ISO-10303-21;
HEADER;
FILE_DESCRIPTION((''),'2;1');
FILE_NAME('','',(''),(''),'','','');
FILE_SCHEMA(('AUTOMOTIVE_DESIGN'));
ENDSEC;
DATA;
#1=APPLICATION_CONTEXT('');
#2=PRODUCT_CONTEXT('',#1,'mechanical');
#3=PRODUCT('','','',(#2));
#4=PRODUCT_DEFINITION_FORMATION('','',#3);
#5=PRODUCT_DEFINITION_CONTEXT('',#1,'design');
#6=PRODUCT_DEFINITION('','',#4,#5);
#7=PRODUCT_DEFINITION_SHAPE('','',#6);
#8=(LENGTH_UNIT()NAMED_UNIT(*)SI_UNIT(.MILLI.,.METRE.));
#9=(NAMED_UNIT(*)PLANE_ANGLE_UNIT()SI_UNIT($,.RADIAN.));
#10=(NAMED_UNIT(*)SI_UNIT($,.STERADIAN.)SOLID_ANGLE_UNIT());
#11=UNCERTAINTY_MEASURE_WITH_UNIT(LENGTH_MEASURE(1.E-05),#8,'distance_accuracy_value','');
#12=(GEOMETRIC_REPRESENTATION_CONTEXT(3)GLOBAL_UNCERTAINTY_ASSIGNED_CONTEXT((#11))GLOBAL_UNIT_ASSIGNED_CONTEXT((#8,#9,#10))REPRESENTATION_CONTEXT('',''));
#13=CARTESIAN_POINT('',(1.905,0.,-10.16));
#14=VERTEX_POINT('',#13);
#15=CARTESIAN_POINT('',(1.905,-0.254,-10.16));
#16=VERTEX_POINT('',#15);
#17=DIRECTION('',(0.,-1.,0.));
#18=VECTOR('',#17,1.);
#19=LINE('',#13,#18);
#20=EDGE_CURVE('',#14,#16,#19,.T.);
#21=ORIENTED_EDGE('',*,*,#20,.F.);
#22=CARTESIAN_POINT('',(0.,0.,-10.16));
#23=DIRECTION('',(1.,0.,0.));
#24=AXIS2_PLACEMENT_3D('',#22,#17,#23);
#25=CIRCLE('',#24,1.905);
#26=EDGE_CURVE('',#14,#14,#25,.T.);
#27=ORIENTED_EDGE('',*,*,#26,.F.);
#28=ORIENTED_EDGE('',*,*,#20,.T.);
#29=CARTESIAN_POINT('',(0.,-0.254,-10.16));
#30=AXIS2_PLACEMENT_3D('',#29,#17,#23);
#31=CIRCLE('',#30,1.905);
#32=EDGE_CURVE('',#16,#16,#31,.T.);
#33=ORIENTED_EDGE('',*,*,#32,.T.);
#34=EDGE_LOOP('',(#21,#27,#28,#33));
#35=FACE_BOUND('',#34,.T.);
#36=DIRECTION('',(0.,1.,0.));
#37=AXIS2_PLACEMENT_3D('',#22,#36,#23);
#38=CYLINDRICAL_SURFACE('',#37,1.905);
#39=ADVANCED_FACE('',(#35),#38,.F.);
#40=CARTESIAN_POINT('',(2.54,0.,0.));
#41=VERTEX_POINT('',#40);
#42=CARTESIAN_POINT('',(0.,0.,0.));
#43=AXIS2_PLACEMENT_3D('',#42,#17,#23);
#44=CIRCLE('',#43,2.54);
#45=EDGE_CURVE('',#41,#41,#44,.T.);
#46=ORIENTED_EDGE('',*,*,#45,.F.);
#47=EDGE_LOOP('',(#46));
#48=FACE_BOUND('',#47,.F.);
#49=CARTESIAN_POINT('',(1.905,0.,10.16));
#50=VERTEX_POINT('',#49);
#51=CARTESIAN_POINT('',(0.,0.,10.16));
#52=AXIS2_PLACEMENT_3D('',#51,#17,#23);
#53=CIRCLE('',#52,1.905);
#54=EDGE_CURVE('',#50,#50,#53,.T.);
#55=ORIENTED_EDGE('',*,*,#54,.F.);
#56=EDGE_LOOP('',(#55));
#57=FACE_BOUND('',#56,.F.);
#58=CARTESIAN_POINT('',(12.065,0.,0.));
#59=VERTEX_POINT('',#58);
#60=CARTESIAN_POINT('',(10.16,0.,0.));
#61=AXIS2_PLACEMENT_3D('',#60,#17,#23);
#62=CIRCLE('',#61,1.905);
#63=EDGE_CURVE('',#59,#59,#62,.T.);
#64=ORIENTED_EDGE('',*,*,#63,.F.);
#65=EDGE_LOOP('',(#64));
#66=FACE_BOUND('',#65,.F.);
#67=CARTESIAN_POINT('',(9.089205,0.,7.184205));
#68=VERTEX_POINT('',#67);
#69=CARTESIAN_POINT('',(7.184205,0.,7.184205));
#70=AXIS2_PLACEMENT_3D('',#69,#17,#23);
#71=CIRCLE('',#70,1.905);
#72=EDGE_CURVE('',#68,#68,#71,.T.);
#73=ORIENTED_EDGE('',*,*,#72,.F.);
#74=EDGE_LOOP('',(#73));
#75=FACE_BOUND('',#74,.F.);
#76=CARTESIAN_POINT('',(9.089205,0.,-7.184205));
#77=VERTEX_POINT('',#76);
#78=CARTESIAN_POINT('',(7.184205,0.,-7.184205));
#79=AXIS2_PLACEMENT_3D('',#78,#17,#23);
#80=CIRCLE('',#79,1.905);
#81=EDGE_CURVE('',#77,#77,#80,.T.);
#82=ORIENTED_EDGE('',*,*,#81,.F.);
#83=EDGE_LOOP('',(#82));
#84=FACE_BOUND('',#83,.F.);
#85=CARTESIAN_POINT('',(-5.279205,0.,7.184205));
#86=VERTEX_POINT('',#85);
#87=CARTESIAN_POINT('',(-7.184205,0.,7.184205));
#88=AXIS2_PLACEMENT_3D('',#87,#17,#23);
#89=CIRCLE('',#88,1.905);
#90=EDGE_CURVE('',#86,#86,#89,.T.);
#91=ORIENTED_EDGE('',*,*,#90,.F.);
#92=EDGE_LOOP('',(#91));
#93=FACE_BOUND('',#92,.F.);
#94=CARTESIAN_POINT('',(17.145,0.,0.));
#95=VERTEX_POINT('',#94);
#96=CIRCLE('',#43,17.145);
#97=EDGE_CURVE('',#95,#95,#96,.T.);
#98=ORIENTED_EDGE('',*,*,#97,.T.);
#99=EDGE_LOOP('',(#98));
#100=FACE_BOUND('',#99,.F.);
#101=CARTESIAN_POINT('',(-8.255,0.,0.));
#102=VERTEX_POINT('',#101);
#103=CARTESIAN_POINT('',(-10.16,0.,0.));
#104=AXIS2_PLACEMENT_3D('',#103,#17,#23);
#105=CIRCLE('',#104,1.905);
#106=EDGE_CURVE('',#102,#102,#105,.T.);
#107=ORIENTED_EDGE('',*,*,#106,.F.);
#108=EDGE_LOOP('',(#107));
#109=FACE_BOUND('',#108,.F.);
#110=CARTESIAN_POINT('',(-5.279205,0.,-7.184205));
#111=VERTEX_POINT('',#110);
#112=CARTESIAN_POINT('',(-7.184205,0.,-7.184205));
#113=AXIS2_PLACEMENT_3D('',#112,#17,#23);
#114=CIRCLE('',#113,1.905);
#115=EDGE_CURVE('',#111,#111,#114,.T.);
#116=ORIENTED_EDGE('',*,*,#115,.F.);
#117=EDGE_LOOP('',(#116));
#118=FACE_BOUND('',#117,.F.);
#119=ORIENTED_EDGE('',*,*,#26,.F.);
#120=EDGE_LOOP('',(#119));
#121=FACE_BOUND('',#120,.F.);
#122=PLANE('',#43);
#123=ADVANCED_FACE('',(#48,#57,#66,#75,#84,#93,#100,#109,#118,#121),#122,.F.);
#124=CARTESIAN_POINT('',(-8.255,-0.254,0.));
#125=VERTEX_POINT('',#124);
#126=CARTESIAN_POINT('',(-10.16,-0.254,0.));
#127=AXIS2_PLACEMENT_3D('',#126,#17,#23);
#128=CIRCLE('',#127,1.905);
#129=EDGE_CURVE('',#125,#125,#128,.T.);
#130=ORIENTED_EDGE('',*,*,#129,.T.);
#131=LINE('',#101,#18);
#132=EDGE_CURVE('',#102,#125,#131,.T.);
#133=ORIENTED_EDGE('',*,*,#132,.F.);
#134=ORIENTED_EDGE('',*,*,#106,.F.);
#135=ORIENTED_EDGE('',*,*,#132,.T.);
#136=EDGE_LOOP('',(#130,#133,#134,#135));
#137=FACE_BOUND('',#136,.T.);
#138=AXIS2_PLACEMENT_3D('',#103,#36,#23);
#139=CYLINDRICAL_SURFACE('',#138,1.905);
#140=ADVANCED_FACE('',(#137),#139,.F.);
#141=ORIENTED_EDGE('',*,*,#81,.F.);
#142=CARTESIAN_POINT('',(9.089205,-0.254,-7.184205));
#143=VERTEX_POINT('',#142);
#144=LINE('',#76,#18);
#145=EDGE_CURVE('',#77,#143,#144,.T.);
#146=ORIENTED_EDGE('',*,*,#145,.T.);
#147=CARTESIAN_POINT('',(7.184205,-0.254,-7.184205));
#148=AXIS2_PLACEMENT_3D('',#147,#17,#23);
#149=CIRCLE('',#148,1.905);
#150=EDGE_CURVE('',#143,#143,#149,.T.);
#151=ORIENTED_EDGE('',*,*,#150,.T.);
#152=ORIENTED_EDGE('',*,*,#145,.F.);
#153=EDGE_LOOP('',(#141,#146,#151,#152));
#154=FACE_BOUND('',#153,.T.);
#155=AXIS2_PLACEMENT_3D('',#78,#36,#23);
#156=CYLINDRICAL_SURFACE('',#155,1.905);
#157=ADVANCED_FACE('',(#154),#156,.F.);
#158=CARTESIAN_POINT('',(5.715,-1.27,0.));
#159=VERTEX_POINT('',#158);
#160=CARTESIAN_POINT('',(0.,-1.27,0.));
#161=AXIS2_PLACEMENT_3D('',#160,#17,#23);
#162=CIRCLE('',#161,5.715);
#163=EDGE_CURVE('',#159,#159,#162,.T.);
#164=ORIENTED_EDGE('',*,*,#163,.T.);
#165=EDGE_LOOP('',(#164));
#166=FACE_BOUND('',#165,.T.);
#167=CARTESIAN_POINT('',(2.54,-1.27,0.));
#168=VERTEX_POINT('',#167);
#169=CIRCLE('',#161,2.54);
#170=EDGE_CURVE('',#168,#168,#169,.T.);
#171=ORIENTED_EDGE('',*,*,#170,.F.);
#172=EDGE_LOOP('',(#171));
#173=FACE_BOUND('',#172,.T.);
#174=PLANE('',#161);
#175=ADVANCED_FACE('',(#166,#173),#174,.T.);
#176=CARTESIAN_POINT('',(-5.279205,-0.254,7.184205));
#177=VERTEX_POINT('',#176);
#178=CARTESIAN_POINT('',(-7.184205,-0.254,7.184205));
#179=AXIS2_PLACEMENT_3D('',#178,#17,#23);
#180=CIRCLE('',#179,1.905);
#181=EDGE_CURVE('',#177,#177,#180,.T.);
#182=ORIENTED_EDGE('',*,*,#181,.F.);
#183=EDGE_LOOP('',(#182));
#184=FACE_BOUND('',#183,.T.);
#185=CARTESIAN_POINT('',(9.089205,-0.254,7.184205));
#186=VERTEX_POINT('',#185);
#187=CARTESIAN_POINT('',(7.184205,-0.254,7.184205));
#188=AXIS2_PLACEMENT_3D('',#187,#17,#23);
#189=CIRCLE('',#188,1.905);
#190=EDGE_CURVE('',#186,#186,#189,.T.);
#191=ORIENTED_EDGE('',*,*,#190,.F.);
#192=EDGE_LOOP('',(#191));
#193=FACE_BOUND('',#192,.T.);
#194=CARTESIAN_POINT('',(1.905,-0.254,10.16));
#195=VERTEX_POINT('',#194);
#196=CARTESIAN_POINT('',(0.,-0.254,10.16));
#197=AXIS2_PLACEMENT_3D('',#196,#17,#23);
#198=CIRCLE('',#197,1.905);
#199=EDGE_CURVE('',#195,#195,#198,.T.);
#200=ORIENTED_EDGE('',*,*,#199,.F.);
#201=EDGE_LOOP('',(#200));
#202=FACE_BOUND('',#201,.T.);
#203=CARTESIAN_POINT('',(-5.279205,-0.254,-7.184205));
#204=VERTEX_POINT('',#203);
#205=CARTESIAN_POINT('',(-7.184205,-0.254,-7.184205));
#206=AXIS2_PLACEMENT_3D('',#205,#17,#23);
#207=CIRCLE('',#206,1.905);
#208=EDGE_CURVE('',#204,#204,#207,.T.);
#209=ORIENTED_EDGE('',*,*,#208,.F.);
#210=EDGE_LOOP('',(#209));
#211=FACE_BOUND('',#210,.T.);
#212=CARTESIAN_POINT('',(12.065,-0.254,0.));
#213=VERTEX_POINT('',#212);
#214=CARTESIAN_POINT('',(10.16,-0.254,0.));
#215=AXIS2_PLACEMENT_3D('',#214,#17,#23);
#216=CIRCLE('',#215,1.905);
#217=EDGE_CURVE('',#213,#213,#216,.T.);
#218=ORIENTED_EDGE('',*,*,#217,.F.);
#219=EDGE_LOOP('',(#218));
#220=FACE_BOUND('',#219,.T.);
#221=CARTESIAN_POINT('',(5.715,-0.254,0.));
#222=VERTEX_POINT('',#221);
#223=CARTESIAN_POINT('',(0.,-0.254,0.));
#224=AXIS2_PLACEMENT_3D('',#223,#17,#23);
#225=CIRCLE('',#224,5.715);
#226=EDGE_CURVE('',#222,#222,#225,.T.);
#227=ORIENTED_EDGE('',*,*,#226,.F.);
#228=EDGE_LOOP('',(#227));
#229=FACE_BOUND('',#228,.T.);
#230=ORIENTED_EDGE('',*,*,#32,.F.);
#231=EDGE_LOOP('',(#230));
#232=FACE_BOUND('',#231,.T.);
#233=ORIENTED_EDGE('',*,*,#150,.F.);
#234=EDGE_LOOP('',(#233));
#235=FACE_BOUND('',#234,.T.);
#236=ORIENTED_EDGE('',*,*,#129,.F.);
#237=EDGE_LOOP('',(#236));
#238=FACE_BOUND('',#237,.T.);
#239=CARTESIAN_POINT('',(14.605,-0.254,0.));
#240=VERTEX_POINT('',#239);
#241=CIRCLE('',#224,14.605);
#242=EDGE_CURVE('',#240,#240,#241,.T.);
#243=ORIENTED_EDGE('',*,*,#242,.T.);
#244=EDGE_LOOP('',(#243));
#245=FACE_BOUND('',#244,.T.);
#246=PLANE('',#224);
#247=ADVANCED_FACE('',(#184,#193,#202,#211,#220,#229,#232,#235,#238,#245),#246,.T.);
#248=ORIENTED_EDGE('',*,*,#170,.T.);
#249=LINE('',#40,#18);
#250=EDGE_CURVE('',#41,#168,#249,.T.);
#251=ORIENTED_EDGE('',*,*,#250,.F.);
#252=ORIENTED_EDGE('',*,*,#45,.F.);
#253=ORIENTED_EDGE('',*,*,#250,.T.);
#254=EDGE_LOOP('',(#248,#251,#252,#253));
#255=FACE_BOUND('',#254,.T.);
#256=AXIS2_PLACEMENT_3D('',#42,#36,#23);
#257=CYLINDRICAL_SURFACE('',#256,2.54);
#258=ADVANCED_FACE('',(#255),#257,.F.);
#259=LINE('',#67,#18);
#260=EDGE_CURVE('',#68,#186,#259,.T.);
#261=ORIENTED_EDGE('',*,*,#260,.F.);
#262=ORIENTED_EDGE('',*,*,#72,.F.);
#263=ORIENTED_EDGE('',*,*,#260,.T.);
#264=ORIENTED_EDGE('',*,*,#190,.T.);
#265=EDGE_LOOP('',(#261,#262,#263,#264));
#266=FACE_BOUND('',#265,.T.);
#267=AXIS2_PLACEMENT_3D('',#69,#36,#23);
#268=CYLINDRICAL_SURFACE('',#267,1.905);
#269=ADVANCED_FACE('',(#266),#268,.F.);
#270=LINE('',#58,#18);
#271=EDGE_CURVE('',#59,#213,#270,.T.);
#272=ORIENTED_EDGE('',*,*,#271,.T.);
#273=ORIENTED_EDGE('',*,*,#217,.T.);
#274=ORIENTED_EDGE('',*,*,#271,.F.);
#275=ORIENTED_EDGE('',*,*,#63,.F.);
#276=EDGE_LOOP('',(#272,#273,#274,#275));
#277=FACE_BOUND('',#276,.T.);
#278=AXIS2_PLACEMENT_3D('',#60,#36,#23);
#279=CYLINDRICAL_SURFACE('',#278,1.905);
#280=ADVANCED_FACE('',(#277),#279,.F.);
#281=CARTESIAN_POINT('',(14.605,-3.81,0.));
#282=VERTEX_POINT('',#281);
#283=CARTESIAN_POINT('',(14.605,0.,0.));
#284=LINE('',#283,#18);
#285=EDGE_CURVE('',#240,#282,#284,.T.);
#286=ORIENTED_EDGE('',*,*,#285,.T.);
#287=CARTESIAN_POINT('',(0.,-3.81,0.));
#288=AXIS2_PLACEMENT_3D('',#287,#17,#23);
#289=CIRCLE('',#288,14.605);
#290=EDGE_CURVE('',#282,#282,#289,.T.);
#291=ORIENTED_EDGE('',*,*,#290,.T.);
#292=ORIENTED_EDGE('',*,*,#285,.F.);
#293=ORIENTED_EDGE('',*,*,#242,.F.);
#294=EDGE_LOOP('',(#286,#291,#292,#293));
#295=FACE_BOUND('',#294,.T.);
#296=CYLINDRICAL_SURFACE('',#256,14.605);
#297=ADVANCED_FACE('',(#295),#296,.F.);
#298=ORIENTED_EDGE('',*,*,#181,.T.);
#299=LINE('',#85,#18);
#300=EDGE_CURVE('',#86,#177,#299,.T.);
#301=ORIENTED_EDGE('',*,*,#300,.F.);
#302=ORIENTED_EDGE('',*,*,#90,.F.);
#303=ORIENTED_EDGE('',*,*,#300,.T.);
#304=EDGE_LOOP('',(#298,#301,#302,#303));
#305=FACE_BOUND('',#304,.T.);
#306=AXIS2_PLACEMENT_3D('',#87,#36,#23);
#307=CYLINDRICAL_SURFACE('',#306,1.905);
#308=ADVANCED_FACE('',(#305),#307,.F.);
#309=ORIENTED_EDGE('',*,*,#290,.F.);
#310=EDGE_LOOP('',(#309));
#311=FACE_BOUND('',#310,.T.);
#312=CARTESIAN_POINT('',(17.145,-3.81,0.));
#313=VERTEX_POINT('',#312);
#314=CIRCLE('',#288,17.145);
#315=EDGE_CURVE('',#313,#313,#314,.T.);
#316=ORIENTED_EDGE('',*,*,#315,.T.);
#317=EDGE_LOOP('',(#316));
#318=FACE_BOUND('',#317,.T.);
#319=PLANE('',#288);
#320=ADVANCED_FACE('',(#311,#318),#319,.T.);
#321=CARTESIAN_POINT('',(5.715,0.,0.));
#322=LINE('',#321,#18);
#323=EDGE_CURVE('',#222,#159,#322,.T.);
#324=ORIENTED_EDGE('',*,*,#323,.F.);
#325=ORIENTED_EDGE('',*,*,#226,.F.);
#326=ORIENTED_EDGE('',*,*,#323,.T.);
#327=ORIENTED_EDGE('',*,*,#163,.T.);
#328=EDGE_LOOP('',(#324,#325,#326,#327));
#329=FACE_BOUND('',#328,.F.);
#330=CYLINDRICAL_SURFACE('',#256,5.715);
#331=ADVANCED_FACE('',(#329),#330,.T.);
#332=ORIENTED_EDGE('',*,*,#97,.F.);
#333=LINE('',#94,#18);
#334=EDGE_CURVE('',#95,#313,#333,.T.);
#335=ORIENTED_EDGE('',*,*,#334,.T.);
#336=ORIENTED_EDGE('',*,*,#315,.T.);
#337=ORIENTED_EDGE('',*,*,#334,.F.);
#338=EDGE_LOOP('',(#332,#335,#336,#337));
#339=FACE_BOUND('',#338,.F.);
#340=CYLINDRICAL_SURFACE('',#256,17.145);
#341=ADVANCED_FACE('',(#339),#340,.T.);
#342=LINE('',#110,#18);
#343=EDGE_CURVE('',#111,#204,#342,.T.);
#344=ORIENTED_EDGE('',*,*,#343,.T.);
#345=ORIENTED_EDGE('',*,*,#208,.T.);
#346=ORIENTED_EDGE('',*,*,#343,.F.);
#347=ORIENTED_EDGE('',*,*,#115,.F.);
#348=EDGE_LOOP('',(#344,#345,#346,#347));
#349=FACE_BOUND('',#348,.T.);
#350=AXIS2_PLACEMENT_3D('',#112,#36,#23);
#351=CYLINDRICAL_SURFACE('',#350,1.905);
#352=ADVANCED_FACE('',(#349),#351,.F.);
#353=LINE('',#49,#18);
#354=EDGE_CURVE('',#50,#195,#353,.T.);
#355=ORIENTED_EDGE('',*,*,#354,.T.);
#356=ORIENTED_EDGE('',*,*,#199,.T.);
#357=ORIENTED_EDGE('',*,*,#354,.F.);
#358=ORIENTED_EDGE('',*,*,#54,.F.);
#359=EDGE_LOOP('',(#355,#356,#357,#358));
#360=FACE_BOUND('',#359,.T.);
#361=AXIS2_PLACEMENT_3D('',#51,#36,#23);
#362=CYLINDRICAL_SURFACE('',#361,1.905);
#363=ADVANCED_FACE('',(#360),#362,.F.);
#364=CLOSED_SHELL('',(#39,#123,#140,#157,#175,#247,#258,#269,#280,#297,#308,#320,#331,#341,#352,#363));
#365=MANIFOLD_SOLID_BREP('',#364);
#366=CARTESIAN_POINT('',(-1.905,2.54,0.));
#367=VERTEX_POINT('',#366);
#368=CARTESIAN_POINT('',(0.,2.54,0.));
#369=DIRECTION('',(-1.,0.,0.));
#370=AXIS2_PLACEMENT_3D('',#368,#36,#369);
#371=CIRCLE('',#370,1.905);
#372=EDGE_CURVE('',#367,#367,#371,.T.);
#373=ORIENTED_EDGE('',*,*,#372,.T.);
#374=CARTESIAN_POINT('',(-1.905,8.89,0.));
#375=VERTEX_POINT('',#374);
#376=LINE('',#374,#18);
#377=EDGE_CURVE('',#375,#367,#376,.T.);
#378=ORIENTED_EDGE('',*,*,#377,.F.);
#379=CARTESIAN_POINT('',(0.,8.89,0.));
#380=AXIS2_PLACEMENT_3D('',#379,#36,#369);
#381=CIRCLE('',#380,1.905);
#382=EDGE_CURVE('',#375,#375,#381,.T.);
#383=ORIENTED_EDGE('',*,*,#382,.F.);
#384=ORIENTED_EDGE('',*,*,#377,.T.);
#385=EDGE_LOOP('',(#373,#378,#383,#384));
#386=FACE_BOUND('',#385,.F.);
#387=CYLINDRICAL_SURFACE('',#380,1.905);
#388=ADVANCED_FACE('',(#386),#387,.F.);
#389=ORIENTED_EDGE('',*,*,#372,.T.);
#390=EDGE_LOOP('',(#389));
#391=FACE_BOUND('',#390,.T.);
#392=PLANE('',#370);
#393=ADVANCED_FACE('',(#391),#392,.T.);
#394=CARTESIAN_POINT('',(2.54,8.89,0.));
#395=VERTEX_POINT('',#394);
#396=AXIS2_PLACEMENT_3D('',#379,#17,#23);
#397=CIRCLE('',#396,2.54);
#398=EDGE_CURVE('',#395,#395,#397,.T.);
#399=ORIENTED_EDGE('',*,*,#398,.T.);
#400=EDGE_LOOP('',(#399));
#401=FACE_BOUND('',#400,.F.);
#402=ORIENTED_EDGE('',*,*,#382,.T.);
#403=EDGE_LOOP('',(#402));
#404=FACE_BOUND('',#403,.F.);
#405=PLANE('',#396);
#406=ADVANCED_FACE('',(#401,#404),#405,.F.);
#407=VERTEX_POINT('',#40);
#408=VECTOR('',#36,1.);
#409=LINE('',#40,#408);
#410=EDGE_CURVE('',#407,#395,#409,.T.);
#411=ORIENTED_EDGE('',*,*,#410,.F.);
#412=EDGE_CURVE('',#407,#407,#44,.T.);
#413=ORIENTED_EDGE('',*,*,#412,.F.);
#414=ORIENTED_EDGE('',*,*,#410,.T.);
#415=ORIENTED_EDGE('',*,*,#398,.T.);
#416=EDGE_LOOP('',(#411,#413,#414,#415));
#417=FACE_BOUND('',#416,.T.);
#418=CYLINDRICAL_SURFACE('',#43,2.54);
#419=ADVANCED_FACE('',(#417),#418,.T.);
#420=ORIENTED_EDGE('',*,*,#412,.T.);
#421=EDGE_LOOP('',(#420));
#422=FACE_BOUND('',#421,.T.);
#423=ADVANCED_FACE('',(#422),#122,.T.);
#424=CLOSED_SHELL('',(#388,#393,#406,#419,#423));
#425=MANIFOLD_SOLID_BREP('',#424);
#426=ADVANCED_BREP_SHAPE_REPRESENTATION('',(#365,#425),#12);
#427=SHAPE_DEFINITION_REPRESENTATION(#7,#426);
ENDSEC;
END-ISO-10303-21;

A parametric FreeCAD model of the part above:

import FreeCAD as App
import Part
import Sketcher
Q = App.Units.Quantity

doc = App.newDocument("Part")
body = doc.addObject("PartDesign::Body", "Body")

sketch1 = body.newObject("Sketcher::SketchObject", "Sketch")
sketch1.AttachmentSupport = (doc.getObject("XZ_Plane"), [""])
sketch1.MapMode = "FlatFace"
sketch1.addGeometry([
    Part.Circle(App.Vector(0, 0, 0), App.Vector(0, 0, 1), 17.145),
    Part.Circle(App.Vector(0, 0, 0), App.Vector(0, 0, 1), 14.605),
], False)
sketch1.addConstraint([
    Sketcher.Constraint("Coincident", 0, 3, -1, 1),
    Sketcher.Constraint("Coincident", 1, 3, -1, 1),
    Sketcher.Constraint("Diameter", 0, Q("1.35 in")),
    Sketcher.Constraint("Diameter", 1, Q("1.15 in")),
])
pad1 = body.newObject("PartDesign::Pad", "Pad")
pad1.Profile = sketch1
pad1.Length = Q("0.15 in")
body2 = doc.addObject("PartDesign::Body", "Body001")

sketch2 = body2.newObject("Sketcher::SketchObject", "Sketch001")
sketch2.AttachmentSupport = (doc.getObject("XZ_Plane001"), [""])
sketch2.MapMode = "FlatFace"
sketch2.addGeometry([
    Part.Circle(App.Vector(0, 0, 0), App.Vector(0, 0, 1), 5.715),
    Part.Circle(App.Vector(0, 0, 0), App.Vector(0, 0, 1), 2.54),
], False)
sketch2.addConstraint([
    Sketcher.Constraint("Coincident", 0, 3, -1, 1),
    Sketcher.Constraint("Coincident", 1, 3, -1, 1),
    Sketcher.Constraint("Diameter", 1, Q("0.2 in")),
    Sketcher.Constraint("Diameter", 0, Q("0.45 in")),
])
pad2 = body2.newObject("PartDesign::Pad", "Pad001")
pad2.Profile = sketch2
pad2.Length = Q("0.05 in")
body.AllowCompound = True
doc.recompute()

boolean = body.newObject("PartDesign::Boolean", "Boolean")
boolean.Type = "Fuse"
boolean.addObjects([body2])

sketch3 = body.newObject("Sketcher::SketchObject", "Sketch002")
sketch3.AttachmentSupport = (doc.getObject("XZ_Plane"), [""])
sketch3.MapMode = "FlatFace"
sketch3.addGeometry([
    Part.Circle(App.Vector(0, 0, 0), App.Vector(0, 0, 1), 14.605),
    Part.Circle(App.Vector(-7.184205, -7.184205, 0), App.Vector(0, 0, 1), 1.905),
    Part.Circle(App.Vector(0, -10.16, 0), App.Vector(0, 0, 1), 1.905),
    Part.Circle(App.Vector(7.184205, -7.184205, 0), App.Vector(0, 0, 1), 1.905),
    Part.Circle(App.Vector(-10.16, 0, 0), App.Vector(0, 0, 1), 1.905),
    Part.Circle(App.Vector(-7.184205, 7.184205, 0), App.Vector(0, 0, 1), 1.905),
    Part.Circle(App.Vector(0, 0, 0), App.Vector(0, 0, 1), 5.715),
    Part.Circle(App.Vector(10.16, 0, 0), App.Vector(0, 0, 1), 1.905),
    Part.Circle(App.Vector(0, 10.16, 0), App.Vector(0, 0, 1), 1.905),
    Part.Circle(App.Vector(7.184205, 7.184205, 0), App.Vector(0, 0, 1), 1.905),
], False)
sketch3.addConstraint([
    Sketcher.Constraint("Coincident", 0, 3, -1, 1),
    Sketcher.Constraint("Coincident", 6, 3, -1, 1),
    Sketcher.Constraint("Equal", 1, 2),
    Sketcher.Constraint("Equal", 2, 3),
    Sketcher.Constraint("Equal", 3, 4),
    Sketcher.Constraint("Equal", 4, 5),
    Sketcher.Constraint("Equal", 5, 7),
    Sketcher.Constraint("Equal", 7, 8),
    Sketcher.Constraint("Equal", 8, 9),
    Sketcher.Constraint("Symmetric", 3, 3, 5, 3, -1, 1),
    Sketcher.Constraint("Symmetric", 4, 3, 7, 3, -1, 1),
    Sketcher.Constraint("Symmetric", 2, 3, 8, 3, -1, 1),
    Sketcher.Constraint("Symmetric", 1, 3, 9, 3, -1, 1),
    Sketcher.Constraint("Symmetric", 1, 3, 3, 3, -2),
    Sketcher.Constraint("PointOnObject", 2, 3, -2),
    Sketcher.Constraint("PointOnObject", 4, 3, -1),
    Sketcher.Constraint("Diameter", 0, Q("1.15 in")),
    Sketcher.Constraint("Diameter", 1, Q("0.15 in")),
    Sketcher.Constraint("Diameter", 6, Q("0.45 in")),
    Sketcher.Constraint("DistanceY", 2, 3, -1, 1, Q("0.4 in")),
    Sketcher.Constraint("DistanceX", 4, 3, -1, 1, Q("0.4 in")),
    Sketcher.Constraint("DistanceX", 1, 3, 3, 3, 14.36841),
    Sketcher.Constraint("DistanceY", 1, 3, 5, 3, 14.36841),
])
pad3 = body.newObject("PartDesign::Pad", "Pad002")
pad3.Profile = sketch3
pad3.Length = Q("0.01 in")

sketch4 = body.newObject("Sketcher::SketchObject", "Sketch003")
sketch4.AttachmentSupport = (doc.getObject("XZ_Plane"), [""])
sketch4.MapMode = "FlatFace"
sketch4.addGeometry(Part.Circle(App.Vector(0, 0, 0), App.Vector(0, 0, 1), 2.54), False)
sketch4.addConstraint([
    Sketcher.Constraint("Coincident", 0, 3, -1, 1),
    Sketcher.Constraint("Diameter", 0, Q("0.2 in")),
])
pad4 = body.newObject("PartDesign::Pad", "Pad003")
pad4.Profile = sketch4
pad4.Length = Q("0.35 in")
pad4.Reversed = True

sketch5 = body.newObject("Sketcher::SketchObject", "Sketch004")
sketch5.AttachmentSupport = (doc.getObject("XZ_Plane"), [""])
sketch5.MapMode = "FlatFace"
sketch5.AttachmentOffset = App.Placement(App.Vector(0, 0, -0.35 * 25.4), App.Rotation())
sketch5.addGeometry(Part.Circle(App.Vector(0, 0, 0), App.Vector(0, 0, 1), 1.905), False)
sketch5.addConstraint([
    Sketcher.Constraint("Coincident", 0, 3, -1, 1),
    Sketcher.Constraint("Diameter", 0, Q("0.15 in")),
])
pocket1 = body.newObject("PartDesign::Pocket", "Pocket")
pocket1.Profile = sketch5
pocket1.Length = Q("0.25 in")
pocket1.Reversed = True

doc.recompute()
